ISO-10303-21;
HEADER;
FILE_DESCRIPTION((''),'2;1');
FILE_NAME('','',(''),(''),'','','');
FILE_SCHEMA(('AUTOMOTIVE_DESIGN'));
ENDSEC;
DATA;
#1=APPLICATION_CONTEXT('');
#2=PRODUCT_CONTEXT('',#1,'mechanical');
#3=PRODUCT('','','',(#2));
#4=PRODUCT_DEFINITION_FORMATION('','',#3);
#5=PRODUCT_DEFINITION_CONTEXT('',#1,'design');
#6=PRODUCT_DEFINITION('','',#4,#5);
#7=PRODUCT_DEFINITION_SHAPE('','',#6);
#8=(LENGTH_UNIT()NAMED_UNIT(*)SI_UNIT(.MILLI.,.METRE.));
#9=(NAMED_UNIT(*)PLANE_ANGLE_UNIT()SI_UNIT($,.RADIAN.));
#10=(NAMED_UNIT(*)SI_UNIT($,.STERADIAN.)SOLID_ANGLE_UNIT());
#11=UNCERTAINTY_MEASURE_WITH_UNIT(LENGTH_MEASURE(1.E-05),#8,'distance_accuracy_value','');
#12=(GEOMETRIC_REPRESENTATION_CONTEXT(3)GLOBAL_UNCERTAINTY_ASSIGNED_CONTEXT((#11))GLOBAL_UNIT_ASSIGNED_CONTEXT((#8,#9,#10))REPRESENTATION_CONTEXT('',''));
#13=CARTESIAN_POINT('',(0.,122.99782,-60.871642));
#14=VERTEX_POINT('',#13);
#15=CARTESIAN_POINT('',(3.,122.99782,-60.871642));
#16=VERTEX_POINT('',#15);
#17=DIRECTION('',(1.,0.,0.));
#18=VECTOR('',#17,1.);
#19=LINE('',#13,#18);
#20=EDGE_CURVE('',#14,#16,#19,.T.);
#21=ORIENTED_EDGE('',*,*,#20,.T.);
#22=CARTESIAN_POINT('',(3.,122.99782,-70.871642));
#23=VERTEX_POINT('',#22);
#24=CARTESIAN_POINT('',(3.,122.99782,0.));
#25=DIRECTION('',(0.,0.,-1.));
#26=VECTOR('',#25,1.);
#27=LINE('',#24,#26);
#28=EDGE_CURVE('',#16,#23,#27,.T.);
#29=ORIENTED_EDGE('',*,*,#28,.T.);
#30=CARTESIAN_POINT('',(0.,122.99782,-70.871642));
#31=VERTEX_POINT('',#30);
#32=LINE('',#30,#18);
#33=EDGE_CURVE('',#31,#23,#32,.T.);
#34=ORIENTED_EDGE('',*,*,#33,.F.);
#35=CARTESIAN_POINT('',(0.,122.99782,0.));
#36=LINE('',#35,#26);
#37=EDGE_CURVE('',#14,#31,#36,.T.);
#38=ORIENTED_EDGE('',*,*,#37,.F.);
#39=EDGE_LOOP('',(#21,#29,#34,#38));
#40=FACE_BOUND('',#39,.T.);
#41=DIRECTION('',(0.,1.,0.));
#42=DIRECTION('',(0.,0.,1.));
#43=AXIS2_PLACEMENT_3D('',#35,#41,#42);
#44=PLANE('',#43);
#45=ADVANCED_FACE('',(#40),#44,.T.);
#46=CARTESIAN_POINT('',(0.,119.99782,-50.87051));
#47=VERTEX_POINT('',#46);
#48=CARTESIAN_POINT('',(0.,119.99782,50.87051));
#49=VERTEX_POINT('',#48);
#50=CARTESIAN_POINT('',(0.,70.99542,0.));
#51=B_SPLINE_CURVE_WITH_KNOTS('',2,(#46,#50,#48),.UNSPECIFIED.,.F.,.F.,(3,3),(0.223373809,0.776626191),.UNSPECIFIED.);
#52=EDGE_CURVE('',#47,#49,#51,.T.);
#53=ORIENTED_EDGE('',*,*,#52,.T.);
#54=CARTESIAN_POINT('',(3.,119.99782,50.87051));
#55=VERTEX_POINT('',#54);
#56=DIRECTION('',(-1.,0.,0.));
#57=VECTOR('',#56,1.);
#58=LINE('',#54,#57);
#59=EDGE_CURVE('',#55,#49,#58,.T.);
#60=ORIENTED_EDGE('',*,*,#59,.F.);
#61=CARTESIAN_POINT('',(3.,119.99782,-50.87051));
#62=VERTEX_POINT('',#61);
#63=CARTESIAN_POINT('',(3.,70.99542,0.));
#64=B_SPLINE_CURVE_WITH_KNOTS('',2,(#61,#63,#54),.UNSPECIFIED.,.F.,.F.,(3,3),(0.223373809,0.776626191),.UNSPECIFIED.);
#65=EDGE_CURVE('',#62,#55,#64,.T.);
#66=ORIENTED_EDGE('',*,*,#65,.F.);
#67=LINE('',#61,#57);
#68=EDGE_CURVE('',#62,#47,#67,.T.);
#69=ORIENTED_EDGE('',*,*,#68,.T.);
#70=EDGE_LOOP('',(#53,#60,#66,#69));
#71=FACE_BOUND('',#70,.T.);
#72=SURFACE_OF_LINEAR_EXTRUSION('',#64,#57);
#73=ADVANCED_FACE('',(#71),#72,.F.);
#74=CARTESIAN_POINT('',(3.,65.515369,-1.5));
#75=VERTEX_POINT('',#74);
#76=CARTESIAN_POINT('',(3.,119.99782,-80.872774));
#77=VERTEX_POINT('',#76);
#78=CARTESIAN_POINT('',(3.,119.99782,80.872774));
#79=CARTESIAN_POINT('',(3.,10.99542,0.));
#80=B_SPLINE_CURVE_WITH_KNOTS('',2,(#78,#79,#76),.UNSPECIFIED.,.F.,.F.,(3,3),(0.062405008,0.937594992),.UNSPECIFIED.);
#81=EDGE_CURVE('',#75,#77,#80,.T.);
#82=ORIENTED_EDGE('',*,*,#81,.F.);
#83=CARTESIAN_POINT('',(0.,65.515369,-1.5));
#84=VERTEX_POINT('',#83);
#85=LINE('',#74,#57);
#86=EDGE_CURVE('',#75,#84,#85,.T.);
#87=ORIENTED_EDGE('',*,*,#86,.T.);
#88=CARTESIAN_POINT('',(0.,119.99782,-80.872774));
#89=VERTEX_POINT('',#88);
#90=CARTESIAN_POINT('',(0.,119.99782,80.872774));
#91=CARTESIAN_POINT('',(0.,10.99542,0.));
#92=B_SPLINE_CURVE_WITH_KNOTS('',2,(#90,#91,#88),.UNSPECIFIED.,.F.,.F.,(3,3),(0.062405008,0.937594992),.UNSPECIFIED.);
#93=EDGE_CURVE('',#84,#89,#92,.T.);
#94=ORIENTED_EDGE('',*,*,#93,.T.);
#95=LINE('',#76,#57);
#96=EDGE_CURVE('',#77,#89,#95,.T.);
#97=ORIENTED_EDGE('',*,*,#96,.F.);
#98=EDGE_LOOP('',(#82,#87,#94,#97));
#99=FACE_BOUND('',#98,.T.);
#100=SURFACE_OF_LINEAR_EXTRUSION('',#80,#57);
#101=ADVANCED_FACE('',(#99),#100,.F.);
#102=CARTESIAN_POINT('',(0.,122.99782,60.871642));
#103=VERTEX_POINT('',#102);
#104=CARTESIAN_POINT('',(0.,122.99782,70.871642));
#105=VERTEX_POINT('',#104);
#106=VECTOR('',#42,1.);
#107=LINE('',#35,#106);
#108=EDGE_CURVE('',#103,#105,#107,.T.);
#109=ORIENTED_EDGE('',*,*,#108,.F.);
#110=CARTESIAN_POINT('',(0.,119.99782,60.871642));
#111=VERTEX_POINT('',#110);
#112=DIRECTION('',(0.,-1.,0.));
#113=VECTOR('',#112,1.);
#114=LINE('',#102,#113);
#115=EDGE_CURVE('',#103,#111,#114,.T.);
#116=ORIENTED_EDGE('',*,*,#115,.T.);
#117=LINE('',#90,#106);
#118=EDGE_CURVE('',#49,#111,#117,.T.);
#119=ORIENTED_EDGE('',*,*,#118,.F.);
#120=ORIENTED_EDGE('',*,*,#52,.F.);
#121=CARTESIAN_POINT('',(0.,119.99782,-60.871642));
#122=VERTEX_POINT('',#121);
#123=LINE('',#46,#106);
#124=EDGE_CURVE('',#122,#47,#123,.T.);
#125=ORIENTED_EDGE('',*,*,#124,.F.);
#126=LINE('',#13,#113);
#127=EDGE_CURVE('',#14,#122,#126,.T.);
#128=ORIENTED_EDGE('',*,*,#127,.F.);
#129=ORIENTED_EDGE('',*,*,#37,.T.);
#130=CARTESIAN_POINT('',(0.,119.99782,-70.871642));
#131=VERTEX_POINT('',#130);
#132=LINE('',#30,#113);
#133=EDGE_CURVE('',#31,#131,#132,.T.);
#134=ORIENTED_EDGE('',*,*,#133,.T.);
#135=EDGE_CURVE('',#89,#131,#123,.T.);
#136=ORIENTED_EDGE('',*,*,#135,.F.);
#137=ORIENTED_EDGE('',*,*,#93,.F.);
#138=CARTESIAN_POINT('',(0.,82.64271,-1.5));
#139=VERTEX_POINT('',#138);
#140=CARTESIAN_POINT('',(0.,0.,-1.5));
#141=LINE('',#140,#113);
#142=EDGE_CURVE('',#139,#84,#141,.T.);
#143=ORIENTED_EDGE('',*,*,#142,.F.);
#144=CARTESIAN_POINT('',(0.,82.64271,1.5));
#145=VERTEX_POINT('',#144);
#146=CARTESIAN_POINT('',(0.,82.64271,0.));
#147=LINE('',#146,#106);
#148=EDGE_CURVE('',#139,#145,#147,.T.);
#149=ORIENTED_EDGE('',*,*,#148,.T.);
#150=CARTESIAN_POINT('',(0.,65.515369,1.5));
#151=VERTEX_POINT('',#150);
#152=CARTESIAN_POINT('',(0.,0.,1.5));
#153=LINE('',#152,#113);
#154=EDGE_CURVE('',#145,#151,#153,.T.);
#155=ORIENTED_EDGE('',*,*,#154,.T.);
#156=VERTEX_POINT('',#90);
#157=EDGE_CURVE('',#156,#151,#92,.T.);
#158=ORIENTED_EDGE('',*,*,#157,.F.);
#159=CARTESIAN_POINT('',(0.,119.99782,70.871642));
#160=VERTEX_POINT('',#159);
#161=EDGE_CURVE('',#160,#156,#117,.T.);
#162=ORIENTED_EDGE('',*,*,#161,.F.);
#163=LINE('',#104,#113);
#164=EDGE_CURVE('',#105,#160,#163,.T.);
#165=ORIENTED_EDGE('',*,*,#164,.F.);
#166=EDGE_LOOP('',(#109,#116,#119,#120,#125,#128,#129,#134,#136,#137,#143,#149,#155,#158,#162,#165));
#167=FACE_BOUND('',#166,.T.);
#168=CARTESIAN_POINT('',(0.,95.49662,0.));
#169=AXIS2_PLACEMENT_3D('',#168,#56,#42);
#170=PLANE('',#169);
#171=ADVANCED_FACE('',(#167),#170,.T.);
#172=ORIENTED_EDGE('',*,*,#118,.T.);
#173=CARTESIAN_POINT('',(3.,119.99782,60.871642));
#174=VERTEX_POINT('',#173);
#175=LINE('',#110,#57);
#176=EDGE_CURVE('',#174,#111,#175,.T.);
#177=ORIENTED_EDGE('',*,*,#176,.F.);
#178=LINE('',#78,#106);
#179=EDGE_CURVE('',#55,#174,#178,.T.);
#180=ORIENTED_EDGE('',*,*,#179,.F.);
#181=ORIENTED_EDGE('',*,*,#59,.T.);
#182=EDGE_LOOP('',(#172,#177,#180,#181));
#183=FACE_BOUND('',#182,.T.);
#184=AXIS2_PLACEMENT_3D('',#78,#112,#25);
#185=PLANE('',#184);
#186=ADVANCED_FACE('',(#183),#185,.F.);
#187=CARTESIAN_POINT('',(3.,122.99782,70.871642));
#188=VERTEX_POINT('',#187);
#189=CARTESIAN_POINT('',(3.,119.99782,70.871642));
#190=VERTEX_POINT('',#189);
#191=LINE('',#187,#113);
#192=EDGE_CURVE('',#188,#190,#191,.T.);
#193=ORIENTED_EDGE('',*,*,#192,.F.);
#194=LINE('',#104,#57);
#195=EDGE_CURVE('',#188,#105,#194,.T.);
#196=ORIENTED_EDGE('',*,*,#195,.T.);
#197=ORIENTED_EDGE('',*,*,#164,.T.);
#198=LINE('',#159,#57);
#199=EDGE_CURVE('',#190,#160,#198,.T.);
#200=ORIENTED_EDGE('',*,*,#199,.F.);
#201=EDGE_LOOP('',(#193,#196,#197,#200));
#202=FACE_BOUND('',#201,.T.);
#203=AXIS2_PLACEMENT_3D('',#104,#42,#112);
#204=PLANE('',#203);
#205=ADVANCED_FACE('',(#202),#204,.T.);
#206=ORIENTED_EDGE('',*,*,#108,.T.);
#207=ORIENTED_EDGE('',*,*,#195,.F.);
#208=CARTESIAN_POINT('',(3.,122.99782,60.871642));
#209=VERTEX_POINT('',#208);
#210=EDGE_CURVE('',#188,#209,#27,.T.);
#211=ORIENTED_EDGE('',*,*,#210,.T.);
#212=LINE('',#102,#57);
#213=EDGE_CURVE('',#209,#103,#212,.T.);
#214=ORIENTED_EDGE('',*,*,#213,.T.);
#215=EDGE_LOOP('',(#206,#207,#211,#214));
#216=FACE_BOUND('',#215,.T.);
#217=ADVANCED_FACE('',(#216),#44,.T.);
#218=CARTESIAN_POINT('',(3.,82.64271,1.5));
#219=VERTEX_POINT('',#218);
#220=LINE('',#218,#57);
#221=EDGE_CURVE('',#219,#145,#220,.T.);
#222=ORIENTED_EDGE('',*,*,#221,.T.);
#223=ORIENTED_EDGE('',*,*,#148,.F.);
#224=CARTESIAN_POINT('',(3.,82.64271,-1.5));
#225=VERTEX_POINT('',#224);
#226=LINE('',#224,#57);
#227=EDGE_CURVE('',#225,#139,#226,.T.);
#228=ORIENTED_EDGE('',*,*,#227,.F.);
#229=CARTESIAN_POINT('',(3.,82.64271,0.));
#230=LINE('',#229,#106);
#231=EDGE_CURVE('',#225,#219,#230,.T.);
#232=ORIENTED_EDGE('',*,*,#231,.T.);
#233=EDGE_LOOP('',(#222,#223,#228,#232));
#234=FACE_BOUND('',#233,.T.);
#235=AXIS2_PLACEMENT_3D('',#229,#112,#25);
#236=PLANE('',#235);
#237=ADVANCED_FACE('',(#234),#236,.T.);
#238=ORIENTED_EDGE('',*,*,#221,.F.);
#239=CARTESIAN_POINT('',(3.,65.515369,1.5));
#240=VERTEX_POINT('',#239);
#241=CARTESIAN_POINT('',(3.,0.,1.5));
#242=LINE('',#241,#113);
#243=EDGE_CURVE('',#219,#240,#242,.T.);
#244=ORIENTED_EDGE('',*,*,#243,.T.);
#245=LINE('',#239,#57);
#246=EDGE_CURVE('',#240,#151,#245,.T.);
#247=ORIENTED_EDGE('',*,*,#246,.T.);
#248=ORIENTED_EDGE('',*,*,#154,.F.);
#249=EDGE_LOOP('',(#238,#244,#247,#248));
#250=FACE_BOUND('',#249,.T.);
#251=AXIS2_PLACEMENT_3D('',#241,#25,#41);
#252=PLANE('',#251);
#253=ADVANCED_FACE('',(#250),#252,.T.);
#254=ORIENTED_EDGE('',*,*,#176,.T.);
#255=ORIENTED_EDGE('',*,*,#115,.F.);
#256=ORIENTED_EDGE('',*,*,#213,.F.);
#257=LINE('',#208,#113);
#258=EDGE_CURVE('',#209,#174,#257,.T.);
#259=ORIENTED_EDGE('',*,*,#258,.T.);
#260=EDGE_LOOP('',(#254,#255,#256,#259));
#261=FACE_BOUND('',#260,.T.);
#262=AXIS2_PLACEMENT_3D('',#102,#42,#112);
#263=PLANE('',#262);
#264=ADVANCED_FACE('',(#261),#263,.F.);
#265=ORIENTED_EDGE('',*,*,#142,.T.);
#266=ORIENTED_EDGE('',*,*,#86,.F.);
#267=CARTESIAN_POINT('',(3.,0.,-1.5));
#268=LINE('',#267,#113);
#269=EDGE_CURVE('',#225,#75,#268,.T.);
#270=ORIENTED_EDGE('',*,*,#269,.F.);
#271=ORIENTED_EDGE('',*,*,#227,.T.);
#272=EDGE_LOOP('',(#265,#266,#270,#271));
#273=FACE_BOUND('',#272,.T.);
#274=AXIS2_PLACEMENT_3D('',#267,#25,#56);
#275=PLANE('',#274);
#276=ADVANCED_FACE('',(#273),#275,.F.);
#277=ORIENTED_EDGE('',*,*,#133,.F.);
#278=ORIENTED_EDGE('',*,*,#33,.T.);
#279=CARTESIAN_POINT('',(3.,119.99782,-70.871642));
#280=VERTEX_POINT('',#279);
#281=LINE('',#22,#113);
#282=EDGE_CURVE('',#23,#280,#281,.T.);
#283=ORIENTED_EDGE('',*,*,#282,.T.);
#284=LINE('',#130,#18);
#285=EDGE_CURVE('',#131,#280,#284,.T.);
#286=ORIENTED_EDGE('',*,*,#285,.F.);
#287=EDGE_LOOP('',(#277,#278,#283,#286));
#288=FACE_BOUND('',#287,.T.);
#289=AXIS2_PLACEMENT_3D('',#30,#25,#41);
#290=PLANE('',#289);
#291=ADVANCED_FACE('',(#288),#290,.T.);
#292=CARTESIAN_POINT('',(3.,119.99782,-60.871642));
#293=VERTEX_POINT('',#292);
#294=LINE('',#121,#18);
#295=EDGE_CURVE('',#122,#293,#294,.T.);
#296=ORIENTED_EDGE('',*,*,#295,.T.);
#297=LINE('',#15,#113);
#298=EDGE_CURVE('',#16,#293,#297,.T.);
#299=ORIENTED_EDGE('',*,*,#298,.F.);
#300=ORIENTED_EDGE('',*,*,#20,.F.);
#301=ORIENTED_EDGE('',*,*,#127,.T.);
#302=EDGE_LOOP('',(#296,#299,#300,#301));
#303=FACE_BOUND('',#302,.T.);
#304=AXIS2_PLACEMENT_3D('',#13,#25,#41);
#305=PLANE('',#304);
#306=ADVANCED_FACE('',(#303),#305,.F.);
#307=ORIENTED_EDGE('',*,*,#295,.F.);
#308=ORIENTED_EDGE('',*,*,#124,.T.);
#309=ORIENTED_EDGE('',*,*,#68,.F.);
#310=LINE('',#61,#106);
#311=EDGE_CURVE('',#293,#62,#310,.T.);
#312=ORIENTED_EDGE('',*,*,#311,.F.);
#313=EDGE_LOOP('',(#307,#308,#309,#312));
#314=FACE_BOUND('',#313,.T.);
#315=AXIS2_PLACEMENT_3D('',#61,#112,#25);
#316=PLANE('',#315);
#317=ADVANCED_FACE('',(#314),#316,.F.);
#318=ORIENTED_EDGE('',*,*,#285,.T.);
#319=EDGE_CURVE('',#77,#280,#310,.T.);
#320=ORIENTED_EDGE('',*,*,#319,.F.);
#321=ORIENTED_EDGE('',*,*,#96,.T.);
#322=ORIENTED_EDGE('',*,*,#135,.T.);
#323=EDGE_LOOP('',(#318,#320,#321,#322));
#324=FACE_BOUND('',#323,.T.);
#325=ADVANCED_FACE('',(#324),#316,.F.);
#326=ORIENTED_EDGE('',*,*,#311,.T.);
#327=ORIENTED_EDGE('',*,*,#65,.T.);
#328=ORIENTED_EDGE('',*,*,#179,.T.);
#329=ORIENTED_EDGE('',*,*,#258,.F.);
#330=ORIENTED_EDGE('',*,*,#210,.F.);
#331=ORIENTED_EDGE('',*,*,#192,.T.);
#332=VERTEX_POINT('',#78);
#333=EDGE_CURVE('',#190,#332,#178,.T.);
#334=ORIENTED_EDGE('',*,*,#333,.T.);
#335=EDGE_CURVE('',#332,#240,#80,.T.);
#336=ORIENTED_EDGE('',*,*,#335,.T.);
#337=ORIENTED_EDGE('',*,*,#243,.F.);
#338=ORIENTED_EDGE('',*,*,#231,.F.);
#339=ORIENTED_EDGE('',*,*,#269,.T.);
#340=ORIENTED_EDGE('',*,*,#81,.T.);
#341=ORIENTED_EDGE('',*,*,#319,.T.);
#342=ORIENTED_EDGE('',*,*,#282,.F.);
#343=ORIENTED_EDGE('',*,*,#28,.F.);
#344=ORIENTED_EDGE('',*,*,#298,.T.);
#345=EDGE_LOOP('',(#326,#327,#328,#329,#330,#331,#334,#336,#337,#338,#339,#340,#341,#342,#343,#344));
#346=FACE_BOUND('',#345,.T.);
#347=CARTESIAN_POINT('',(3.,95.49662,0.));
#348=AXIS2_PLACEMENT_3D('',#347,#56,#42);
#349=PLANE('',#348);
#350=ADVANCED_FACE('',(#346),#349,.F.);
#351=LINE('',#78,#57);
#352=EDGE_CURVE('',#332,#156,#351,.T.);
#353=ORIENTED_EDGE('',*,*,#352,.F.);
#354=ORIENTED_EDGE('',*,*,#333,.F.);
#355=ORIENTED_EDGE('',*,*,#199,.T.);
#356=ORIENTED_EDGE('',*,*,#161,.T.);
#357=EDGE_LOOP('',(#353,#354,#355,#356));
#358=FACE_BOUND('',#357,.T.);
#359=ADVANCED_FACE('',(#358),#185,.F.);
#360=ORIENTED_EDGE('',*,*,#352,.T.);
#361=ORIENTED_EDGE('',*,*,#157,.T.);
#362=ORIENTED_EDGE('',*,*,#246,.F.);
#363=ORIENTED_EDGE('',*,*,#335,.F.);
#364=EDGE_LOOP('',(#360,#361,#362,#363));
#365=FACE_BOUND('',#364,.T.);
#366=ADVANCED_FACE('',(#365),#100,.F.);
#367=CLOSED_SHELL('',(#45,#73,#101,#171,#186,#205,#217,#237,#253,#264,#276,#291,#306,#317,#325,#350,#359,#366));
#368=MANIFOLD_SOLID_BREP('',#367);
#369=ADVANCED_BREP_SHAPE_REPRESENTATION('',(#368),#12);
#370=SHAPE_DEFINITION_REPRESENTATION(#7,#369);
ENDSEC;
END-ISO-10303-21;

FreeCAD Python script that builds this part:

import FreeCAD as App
import Part
import Sketcher

V = App.Vector
Q = App.Units.Quantity


def add_polygon(sketch, points):
    """Adds a closed chain of lines whose ends are joined by coincident constraints."""
    first, n = sketch.GeometryCount, len(points)
    for a, b in zip(points, points[1:] + points[:1]):
        sketch.addGeometry(Part.LineSegment(App.Vector(*a, 0), App.Vector(*b, 0)), False)
    for i in range(n):
        sketch.addConstraint(Sketcher.Constraint("Coincident", first + i, 2, first + (i + 1) % n, 1))

doc = App.newDocument("Part")
body = doc.addObject("PartDesign::Body", "Body")

# Sketch on YZ plane
sketch1 = body.newObject("Sketcher::SketchObject", "Sketch")
sketch1.AttachmentSupport = (doc.getObject("YZ_Plane"), [""])
sketch1.MapMode = "FlatFace"
sketch1.addGeometry([
    Part.LineSegment(V(119.99782, 50.87051, 0), V(119.99782, 80.872774, 0)),
    Part.BSplineCurve([V(119.99782, 80.872774, 0), V(10.99542, 0, 0), V(119.99782, -80.872774, 0)], [3, 3], [0.062405008, 0.937594992], False, 2, [1, 1, 1], False),
    Part.LineSegment(V(119.99782, -80.872774, 0), V(119.99782, -50.87051, 0)),
    Part.BSplineCurve([V(119.99782, 50.87051, 0), V(70.99542, 0, 0), V(119.99782, -50.87051, 0)], [3, 3], [0.223373809, 0.776626191], False, 2, [1, 1, 1], False),
], False)
sketch1.addConstraint([
    Sketcher.Constraint("Block", 1),
    Sketcher.Constraint("Block", 3),
    Sketcher.Constraint("Coincident", 0, 2, 1, 1),
    Sketcher.Constraint("Coincident", 1, 2, 2, 1),
    Sketcher.Constraint("Coincident", 2, 2, 3, 2),
    Sketcher.Constraint("Coincident", 3, 1, 0, 1),
])
pad1 = body.newObject("PartDesign::Pad", "Pad")
pad1.Profile = sketch1
pad1.Length = 3

# Sketch on XZ plane
sketch2 = body.newObject("Sketcher::SketchObject", "Sketch001")
sketch2.AttachmentSupport = (doc.getObject("XZ_Plane"), [""])
sketch2.MapMode = "FlatFace"
sketch2.AttachmentOffset = App.Placement(V(0, 0, -119.99782), App.Rotation())
add_polygon(sketch2, [(0, -60.9), (3, -60.9), (3, -70.9), (0, -70.9)])  # lines 0-3
add_polygon(sketch2, [(0, 70.9), (3, 70.9), (3, 60.9), (0, 60.9)])  # lines 4-7
sketch2.addConstraint([
    Sketcher.Constraint("Horizontal", 0),
    Sketcher.Constraint("Vertical", 1),
    Sketcher.Constraint("Horizontal", 2),
    Sketcher.Constraint("Vertical", 3),
    Sketcher.Constraint("Horizontal", 4),
    Sketcher.Constraint("Vertical", 5),
    Sketcher.Constraint("Horizontal", 6),
    Sketcher.Constraint("Vertical", 7),
    Sketcher.Constraint("Symmetric", 3, 2, 6, 2, -1, 1),
    Sketcher.Constraint("Symmetric", 1, 2, 4, 2, -1),
    Sketcher.Constraint("PointOnObject", 2, 2, -2),
    Sketcher.Constraint("DistanceX", 0, 1, 0, 2, Q("3 mm")),
    Sketcher.Constraint("DistanceY", 1, 2, 1, 1, Q("10 mm")),
    Sketcher.Constraint("DistanceY", 0, 2, -1, 1, Q("60.871642 mm")),
])
pad2 = body.newObject("PartDesign::Pad", "Pad001")
pad2.Profile = sketch2
pad2.Length = 3
pad2.Reversed = True

# Sketch on YZ plane
sketch3 = body.newObject("Sketcher::SketchObject", "Sketch002")
sketch3.AttachmentSupport = (doc.getObject("YZ_Plane"), [""])
sketch3.MapMode = "FlatFace"
sketch3.addGeometry([
    Part.LineSegment(V(82.64271, 1.5, 0), V(82.64271, -1.5, 0)),
    Part.LineSegment(V(82.64271, -1.5, 0), V(65.515369, -1.5, 0)),
    Part.BSplineCurve([V(65.515369, -1.5, 0), V(65.477871, 0, 0), V(65.515369, 1.5, 0)], [3, 3], [0.491883641, 0.508116359], False, 2, [1, 1, 1], False),
    Part.LineSegment(V(65.515369, 1.5, 0), V(82.64271, 1.5, 0)),
], False)
sketch3.addConstraint([
    Sketcher.Constraint("Block", 2),
    Sketcher.Constraint("Coincident", 0, 2, 1, 1),
    Sketcher.Constraint("Coincident", 1, 2, 2, 1),
    Sketcher.Constraint("Coincident", 2, 2, 3, 1),
    Sketcher.Constraint("Coincident", 3, 2, 0, 1),
    Sketcher.Constraint("Vertical", 0),
    Sketcher.Constraint("Horizontal", 1),
    Sketcher.Constraint("Horizontal", 3),
    Sketcher.Constraint("DistanceX", 1, 2, 1, 1, Q("17.127341 mm")),
])
pocket1 = body.newObject("PartDesign::Pocket", "Pocket")
pocket1.Profile = sketch3
pocket1.Type = "ThroughAll"
pocket1.Reversed = True

doc.recompute()
